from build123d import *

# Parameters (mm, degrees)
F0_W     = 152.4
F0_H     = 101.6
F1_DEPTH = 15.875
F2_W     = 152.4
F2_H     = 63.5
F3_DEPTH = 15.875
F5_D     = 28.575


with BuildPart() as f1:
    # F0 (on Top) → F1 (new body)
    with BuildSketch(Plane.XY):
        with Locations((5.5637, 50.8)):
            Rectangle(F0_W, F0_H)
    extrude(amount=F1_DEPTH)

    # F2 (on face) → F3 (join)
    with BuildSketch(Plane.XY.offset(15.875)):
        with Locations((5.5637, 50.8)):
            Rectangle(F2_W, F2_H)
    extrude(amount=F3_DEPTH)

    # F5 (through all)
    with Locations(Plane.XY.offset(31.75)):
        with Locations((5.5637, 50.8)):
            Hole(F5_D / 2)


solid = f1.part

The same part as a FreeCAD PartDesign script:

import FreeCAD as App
import Part
import Sketcher
Q = App.Units.Quantity


def add_polygon(sketch, points):
    """Adds a closed chain of lines whose ends are joined by coincident constraints."""
    first, n = sketch.GeometryCount, len(points)
    for a, b in zip(points, points[1:] + points[:1]):
        sketch.addGeometry(Part.LineSegment(App.Vector(*a, 0), App.Vector(*b, 0)), False)
    for i in range(n):
        sketch.addConstraint(Sketcher.Constraint("Coincident", first + i, 2, first + (i + 1) % n, 1))

doc = App.newDocument("Part")
body = doc.addObject("PartDesign::Body", "Body")

# Sketch on XY plane
sketch1 = body.newObject("Sketcher::SketchObject", "Sketch")
sketch1.AttachmentSupport = (doc.getObject("XY_Plane"), [""])
sketch1.MapMode = "FlatFace"
add_polygon(sketch1, [(-70.6363, 101.6), (-70.6363, 0), (81.7637, 0), (81.7637, 101.6)])  # lines 0-3
sketch1.addConstraint([
    Sketcher.Constraint("Vertical", 0),
    Sketcher.Constraint("Horizontal", 1),
    Sketcher.Constraint("Vertical", 2),
    Sketcher.Constraint("Horizontal", 3),
    Sketcher.Constraint("PointOnObject", 0, 2, -1),
    Sketcher.Constraint("DistanceX", 1, 1, 1, 2, Q("6 in")),
    Sketcher.Constraint("DistanceY", 0, 2, 0, 1, Q("4 in")),
    Sketcher.Constraint("DistanceX", 0, 2, -1, 1, 70.6363),
])
pad1 = body.newObject("PartDesign::Pad", "Pad")
pad1.Profile = sketch1
pad1.Length = Q("0.625 in")

# Sketch on XY plane
sketch2 = body.newObject("Sketcher::SketchObject", "Sketch001")
sketch2.AttachmentSupport = (doc.getObject("XY_Plane"), [""])
sketch2.MapMode = "FlatFace"
sketch2.AttachmentOffset = App.Placement(App.Vector(0, 0, 0.625 * 25.4), App.Rotation())
add_polygon(sketch2, [(-70.6363, 82.55), (-70.6363, 19.05), (81.7637, 19.05), (81.7637, 82.55)])  # lines 0-3
sketch2.addConstraint([
    Sketcher.Constraint("Vertical", 0),
    Sketcher.Constraint("Horizontal", 1),
    Sketcher.Constraint("Vertical", 2),
    Sketcher.Constraint("Horizontal", 3),
    Sketcher.Constraint("DistanceX", 1, 1, 1, 2, Q("6 in")),
    Sketcher.Constraint("DistanceY", 0, 2, 0, 1, Q("2.5 in")),
    Sketcher.Constraint("DistanceY", -1, 1, 0, 2, Q("0.75 in")),
    Sketcher.Constraint("DistanceX", 0, 2, -1, 1, 70.6363),
])
pad2 = body.newObject("PartDesign::Pad", "Pad001")
pad2.Profile = sketch2
pad2.Length = Q("0.625 in")

# Sketch on XY plane
sketch3 = body.newObject("Sketcher::SketchObject", "Sketch002")
sketch3.AttachmentSupport = (doc.getObject("XY_Plane"), [""])
sketch3.MapMode = "FlatFace"
sketch3.AttachmentOffset = App.Placement(App.Vector(0, 0, 1.25 * 25.4), App.Rotation())
sketch3.addGeometry(Part.Circle(App.Vector(5.5637, 50.8, 0), App.Vector(0, 0, 1), 14.2875), False)
sketch3.addConstraint([
    Sketcher.Constraint("Diameter", 0, Q("1.125 in")),
    Sketcher.Constraint("DistanceY", -1, 1, 0, 3, Q("2 in")),
    Sketcher.Constraint("DistanceX", -1, 1, 0, 3, 5.5637),
])
doc.recompute()
hole = body.newObject("PartDesign::Hole", "Hole")
hole.Profile = sketch3
hole.ThreadType = "None"
hole.Diameter = Q("1.125 in")
hole.DepthType = "ThroughAll"

doc.recompute()
